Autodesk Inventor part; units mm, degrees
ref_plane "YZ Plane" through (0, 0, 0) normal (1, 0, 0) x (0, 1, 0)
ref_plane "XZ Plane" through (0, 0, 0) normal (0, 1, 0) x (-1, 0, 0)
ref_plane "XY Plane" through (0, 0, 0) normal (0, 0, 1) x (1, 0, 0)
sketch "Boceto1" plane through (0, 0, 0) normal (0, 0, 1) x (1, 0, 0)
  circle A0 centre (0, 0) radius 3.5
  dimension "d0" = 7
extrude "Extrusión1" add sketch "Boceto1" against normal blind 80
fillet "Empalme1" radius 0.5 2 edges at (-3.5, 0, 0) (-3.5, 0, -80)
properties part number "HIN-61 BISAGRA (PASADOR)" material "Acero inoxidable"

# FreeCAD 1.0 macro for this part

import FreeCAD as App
import Part
import Sketcher

V = App.Vector


def edges_at(feature, points):
    """Names of the edges that pass closest to the given points."""
    edges = feature.Shape.Edges
    near = lambda p: min(range(len(edges)), key=lambda i: edges[i].distToShape(Part.Vertex(*p))[0])
    return sorted({f"Edge{near(p) + 1}" for p in points})

doc = App.newDocument("Part")
body = doc.addObject("PartDesign::Body", "Body")

# Sketch on XY plane
sketch1 = body.newObject("Sketcher::SketchObject", "Sketch")
sketch1.AttachmentSupport = (doc.getObject("XY_Plane"), [""])
sketch1.MapMode = "FlatFace"
sketch1.addGeometry(Part.Circle(V(0, 0, 0), V(0, 0, 1), 3.5), False)
sketch1.addConstraint([
    Sketcher.Constraint("Coincident", 0, 3, -1, 1),
    Sketcher.Constraint("Diameter", 0, 7.0),
])
pad1 = body.newObject("PartDesign::Pad", "Pad")
pad1.Profile = sketch1
pad1.Length = 80
pad1.Reversed = True
doc.recompute()

fillet = body.newObject("PartDesign::Fillet", "Fillet")
fillet.Base = (pad1, edges_at(pad1, [(-3.5, 0, 0), (-3.5, 0, -80)]))
fillet.Radius = 0.5

doc.recompute()
